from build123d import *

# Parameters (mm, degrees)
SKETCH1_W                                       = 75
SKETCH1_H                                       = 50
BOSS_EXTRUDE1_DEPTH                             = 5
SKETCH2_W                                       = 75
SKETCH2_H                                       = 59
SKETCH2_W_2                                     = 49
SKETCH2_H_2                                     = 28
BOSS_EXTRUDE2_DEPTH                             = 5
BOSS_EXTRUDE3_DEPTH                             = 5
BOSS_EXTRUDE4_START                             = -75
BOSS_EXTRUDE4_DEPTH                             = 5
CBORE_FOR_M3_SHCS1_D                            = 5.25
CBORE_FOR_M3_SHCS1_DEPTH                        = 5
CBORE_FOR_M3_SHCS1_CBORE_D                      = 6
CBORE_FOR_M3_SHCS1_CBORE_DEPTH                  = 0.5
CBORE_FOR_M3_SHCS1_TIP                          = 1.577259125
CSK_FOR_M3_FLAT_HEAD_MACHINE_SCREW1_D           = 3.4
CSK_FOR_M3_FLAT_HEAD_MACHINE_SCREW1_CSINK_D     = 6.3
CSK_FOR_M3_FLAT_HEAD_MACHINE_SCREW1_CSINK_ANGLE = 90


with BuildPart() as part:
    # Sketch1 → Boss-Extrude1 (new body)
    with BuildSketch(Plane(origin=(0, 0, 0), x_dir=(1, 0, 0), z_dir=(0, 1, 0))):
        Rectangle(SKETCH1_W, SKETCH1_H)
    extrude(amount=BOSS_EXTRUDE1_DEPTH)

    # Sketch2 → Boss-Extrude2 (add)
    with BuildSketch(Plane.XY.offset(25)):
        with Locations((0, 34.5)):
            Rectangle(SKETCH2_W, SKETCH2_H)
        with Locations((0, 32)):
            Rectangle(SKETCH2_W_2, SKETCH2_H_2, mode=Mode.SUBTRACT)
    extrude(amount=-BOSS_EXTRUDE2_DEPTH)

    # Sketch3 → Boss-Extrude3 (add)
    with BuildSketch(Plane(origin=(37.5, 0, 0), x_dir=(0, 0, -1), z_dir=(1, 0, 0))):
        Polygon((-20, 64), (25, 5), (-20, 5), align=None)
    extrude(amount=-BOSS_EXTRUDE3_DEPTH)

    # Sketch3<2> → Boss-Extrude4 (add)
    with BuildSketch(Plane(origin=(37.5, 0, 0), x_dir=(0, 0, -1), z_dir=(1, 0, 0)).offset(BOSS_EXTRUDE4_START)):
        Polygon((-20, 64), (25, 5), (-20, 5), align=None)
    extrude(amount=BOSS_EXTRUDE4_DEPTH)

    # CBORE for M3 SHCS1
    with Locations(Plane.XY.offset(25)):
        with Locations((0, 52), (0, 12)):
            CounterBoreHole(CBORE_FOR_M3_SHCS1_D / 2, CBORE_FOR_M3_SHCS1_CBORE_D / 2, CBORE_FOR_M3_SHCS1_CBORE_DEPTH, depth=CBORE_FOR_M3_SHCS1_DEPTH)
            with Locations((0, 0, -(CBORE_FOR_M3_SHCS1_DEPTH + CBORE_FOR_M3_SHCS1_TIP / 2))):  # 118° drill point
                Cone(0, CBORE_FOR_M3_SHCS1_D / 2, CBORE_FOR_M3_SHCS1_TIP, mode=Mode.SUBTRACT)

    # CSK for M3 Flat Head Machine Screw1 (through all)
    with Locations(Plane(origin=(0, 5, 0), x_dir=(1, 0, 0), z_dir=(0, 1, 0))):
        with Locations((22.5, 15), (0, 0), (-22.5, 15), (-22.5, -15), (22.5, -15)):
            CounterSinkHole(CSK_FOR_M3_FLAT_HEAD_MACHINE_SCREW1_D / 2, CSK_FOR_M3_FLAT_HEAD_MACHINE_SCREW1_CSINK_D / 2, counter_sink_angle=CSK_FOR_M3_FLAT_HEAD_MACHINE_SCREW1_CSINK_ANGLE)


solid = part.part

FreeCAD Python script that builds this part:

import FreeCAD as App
import Part
import Sketcher
from FreeCAD import Vector


def add_polygon(sketch, points):
    """Adds a closed chain of lines whose ends are joined by coincident constraints."""
    first, n = sketch.GeometryCount, len(points)
    for a, b in zip(points, points[1:] + points[:1]):
        sketch.addGeometry(Part.LineSegment(App.Vector(*a, 0), App.Vector(*b, 0)), False)
    for i in range(n):
        sketch.addConstraint(Sketcher.Constraint("Coincident", first + i, 2, first + (i + 1) % n, 1))

doc = App.newDocument("Part")
body = doc.addObject("PartDesign::Body", "Body")

# Sketch on XZ plane
sketch1 = body.newObject("Sketcher::SketchObject", "Sketch")
sketch1.AttachmentSupport = (doc.getObject("XZ_Plane"), [""])
sketch1.MapMode = "FlatFace"
add_polygon(sketch1, [(-38, -25), (-38, 25), (38, 25), (38, -25)])  # lines 0-3
sketch1.addConstraint([
    Sketcher.Constraint("Vertical", 0),
    Sketcher.Constraint("Horizontal", 1),
    Sketcher.Constraint("Vertical", 2),
    Sketcher.Constraint("Horizontal", 3),
    Sketcher.Constraint("Symmetric", 0, 2, 2, 2, -1, 1),
    Sketcher.Constraint("DistanceX", 1, 1, 1, 2, 75.0),
    Sketcher.Constraint("DistanceY", 0, 1, 0, 2, 50.0),
])
pad1 = body.newObject("PartDesign::Pad", "Pad")
pad1.Profile = sketch1
pad1.Length = 5
pad1.Reversed = True

# Sketch on XY plane
sketch2 = body.newObject("Sketcher::SketchObject", "Sketch001")
sketch2.AttachmentSupport = (doc.getObject("XY_Plane"), [""])
sketch2.MapMode = "FlatFace"
sketch2.AttachmentOffset = App.Placement(Vector(0, 0, 25), App.Rotation())
add_polygon(sketch2, [(-38, 64), (-38, 5), (38, 5), (38, 64)])  # lines 0-3
add_polygon(sketch2, [(24, 18), (-24, 18), (-24, 46), (24, 46)])  # lines 4-7
sketch2.addConstraint([
    Sketcher.Constraint("Vertical", 0),
    Sketcher.Constraint("Horizontal", 1),
    Sketcher.Constraint("Vertical", 2),
    Sketcher.Constraint("Horizontal", 3),
    Sketcher.Constraint("Horizontal", 4),
    Sketcher.Constraint("Vertical", 5),
    Sketcher.Constraint("Horizontal", 6),
    Sketcher.Constraint("Vertical", 7),
    Sketcher.Constraint("DistanceX", 1, 1, 1, 2, 75.0),
    Sketcher.Constraint("DistanceX", 4, 2, 4, 1, 49.0),
    Sketcher.Constraint("DistanceY", 0, 2, 0, 1, 59.0),
    Sketcher.Constraint("DistanceY", 5, 1, 5, 2, 28.0),
    Sketcher.Constraint("DistanceY", -1, 1, 0, 2, 5.0),
    Sketcher.Constraint("DistanceY", -1, 1, 4, 2, 18.0),
    Sketcher.Constraint("DistanceX", 0, 2, 4, 2, 13.0),
    Sketcher.Constraint("DistanceX", 0, 2, -1, 1, 37.5),
])
pad2 = body.newObject("PartDesign::Pad", "Pad001")
pad2.Profile = sketch2
pad2.Length = 5
pad2.Reversed = True

# Sketch on YZ plane
sketch3 = body.newObject("Sketcher::SketchObject", "Sketch002")
sketch3.AttachmentSupport = (doc.getObject("YZ_Plane"), [""])
sketch3.MapMode = "FlatFace"
sketch3.AttachmentOffset = App.Placement(Vector(0, 0, 37.5), App.Rotation())
add_polygon(sketch3, [(5, -25), (64, 20), (5, 20)])  # lines 0-2
sketch3.addConstraint([
    Sketcher.Constraint("Horizontal", 1),
    Sketcher.Constraint("Vertical", 2),
    Sketcher.Constraint("DistanceX", 1, 2, 1, 1, 59.0),
    Sketcher.Constraint("DistanceY", 2, 2, 2, 1, 45.0),
    Sketcher.Constraint("DistanceX", -1, 1, 0, 2, 64.0),
    Sketcher.Constraint("DistanceY", -1, 1, 0, 2, 20.0),
])
pad3 = body.newObject("PartDesign::Pad", "Pad002")
pad3.Profile = sketch3
pad3.Length = 5
pad3.Reversed = True

# Sketch on YZ plane
sketch4 = body.newObject("Sketcher::SketchObject", "Sketch003")
sketch4.AttachmentSupport = (doc.getObject("YZ_Plane"), [""])
sketch4.MapMode = "FlatFace"
sketch4.AttachmentOffset = App.Placement(Vector(0, 0, -37.5), App.Rotation())
add_polygon(sketch4, [(5, -25), (64, 20), (5, 20)])  # lines 0-2
sketch4.addConstraint([
    Sketcher.Constraint("Horizontal", 1),
    Sketcher.Constraint("Vertical", 2),
    Sketcher.Constraint("DistanceX", 1, 2, 1, 1, 59.0),
    Sketcher.Constraint("DistanceY", 2, 2, 2, 1, 45.0),
    Sketcher.Constraint("DistanceX", -1, 1, 0, 2, 64.0),
    Sketcher.Constraint("DistanceY", -1, 1, 0, 2, 20.0),
])
pad4 = body.newObject("PartDesign::Pad", "Pad003")
pad4.Profile = sketch4
pad4.Length = 5

# Sketch on XY plane
sketch5 = body.newObject("Sketcher::SketchObject", "Sketch004")
sketch5.AttachmentSupport = (doc.getObject("XY_Plane"), [""])
sketch5.MapMode = "FlatFace"
sketch5.AttachmentOffset = App.Placement(Vector(0, 0, 25), App.Rotation())
sketch5.addGeometry([
    Part.Circle(Vector(0, 52, 0), Vector(0, 0, 1), 2.6),
    Part.Circle(Vector(0, 12, 0), Vector(0, 0, 1), 2.6),
], False)
sketch5.addConstraint([
    Sketcher.Constraint("Equal", 0, 1),
    Sketcher.Constraint("PointOnObject", 0, 3, -2),
    Sketcher.Constraint("PointOnObject", 1, 3, -2),
    Sketcher.Constraint("Diameter", 0, 5.25),
    Sketcher.Constraint("DistanceY", -1, 1, 0, 3, 52.0),
    Sketcher.Constraint("DistanceY", -1, 1, 1, 3, 12.0),
])
doc.recompute()
hole = body.newObject("PartDesign::Hole", "Hole")
hole.Profile = sketch5
hole.ThreadType = "None"
hole.Diameter = 5.25
hole.DepthType = "Dimension"
hole.Depth = 5
hole.DrillPoint = "Angled"
hole.DrillPointAngle = 118
hole.HoleCutType = "Counterbore"
hole.HoleCutDiameter = 6
hole.HoleCutDepth = 0.5

# Sketch on XZ plane
sketch6 = body.newObject("Sketcher::SketchObject", "Sketch005")
sketch6.AttachmentSupport = (doc.getObject("XZ_Plane"), [""])
sketch6.MapMode = "FlatFace"
sketch6.AttachmentOffset = App.Placement(Vector(0, 0, -5), App.Rotation())
sketch6.addGeometry([
    Part.Circle(Vector(22.5, -15, 0), Vector(0, 0, 1), 1.7),  # 0
    Part.Circle(Vector(0, 0, 0), Vector(0, 0, 1), 1.7),  # 1
    Part.Circle(Vector(-22.5, -15, 0), Vector(0, 0, 1), 1.7),  # 2
    Part.Circle(Vector(-22.5, 15, 0), Vector(0, 0, 1), 1.7),  # 3
    Part.Circle(Vector(22.5, 15, 0), Vector(0, 0, 1), 1.7),  # 4
], False)
sketch6.addConstraint([
    Sketcher.Constraint("Coincident", 1, 3, -1, 1),
    Sketcher.Constraint("Equal", 0, 1),
    Sketcher.Constraint("Equal", 1, 2),
    Sketcher.Constraint("Equal", 2, 3),
    Sketcher.Constraint("Equal", 3, 4),
    Sketcher.Constraint("Symmetric", 0, 3, 3, 3, -1, 1),
    Sketcher.Constraint("Symmetric", 2, 3, 4, 3, -1, 1),
    Sketcher.Constraint("Symmetric", 0, 3, 2, 3, -2),
    Sketcher.Constraint("Diameter", 0, 3.4),
    Sketcher.Constraint("DistanceY", 0, 3, -1, 1, 15.0),
    Sketcher.Constraint("DistanceX", 2, 3, 0, 3, 45.0),
])
doc.recompute()
hole2 = body.newObject("PartDesign::Hole", "Hole001")
hole2.Profile = sketch6
hole2.ThreadType = "None"
hole2.Diameter = 3.4
hole2.DepthType = "ThroughAll"
hole2.HoleCutType = "Countersink"
hole2.HoleCutDiameter = 6.3
hole2.HoleCutCountersinkAngle = 90
hole2.Reversed = True

doc.recompute()
